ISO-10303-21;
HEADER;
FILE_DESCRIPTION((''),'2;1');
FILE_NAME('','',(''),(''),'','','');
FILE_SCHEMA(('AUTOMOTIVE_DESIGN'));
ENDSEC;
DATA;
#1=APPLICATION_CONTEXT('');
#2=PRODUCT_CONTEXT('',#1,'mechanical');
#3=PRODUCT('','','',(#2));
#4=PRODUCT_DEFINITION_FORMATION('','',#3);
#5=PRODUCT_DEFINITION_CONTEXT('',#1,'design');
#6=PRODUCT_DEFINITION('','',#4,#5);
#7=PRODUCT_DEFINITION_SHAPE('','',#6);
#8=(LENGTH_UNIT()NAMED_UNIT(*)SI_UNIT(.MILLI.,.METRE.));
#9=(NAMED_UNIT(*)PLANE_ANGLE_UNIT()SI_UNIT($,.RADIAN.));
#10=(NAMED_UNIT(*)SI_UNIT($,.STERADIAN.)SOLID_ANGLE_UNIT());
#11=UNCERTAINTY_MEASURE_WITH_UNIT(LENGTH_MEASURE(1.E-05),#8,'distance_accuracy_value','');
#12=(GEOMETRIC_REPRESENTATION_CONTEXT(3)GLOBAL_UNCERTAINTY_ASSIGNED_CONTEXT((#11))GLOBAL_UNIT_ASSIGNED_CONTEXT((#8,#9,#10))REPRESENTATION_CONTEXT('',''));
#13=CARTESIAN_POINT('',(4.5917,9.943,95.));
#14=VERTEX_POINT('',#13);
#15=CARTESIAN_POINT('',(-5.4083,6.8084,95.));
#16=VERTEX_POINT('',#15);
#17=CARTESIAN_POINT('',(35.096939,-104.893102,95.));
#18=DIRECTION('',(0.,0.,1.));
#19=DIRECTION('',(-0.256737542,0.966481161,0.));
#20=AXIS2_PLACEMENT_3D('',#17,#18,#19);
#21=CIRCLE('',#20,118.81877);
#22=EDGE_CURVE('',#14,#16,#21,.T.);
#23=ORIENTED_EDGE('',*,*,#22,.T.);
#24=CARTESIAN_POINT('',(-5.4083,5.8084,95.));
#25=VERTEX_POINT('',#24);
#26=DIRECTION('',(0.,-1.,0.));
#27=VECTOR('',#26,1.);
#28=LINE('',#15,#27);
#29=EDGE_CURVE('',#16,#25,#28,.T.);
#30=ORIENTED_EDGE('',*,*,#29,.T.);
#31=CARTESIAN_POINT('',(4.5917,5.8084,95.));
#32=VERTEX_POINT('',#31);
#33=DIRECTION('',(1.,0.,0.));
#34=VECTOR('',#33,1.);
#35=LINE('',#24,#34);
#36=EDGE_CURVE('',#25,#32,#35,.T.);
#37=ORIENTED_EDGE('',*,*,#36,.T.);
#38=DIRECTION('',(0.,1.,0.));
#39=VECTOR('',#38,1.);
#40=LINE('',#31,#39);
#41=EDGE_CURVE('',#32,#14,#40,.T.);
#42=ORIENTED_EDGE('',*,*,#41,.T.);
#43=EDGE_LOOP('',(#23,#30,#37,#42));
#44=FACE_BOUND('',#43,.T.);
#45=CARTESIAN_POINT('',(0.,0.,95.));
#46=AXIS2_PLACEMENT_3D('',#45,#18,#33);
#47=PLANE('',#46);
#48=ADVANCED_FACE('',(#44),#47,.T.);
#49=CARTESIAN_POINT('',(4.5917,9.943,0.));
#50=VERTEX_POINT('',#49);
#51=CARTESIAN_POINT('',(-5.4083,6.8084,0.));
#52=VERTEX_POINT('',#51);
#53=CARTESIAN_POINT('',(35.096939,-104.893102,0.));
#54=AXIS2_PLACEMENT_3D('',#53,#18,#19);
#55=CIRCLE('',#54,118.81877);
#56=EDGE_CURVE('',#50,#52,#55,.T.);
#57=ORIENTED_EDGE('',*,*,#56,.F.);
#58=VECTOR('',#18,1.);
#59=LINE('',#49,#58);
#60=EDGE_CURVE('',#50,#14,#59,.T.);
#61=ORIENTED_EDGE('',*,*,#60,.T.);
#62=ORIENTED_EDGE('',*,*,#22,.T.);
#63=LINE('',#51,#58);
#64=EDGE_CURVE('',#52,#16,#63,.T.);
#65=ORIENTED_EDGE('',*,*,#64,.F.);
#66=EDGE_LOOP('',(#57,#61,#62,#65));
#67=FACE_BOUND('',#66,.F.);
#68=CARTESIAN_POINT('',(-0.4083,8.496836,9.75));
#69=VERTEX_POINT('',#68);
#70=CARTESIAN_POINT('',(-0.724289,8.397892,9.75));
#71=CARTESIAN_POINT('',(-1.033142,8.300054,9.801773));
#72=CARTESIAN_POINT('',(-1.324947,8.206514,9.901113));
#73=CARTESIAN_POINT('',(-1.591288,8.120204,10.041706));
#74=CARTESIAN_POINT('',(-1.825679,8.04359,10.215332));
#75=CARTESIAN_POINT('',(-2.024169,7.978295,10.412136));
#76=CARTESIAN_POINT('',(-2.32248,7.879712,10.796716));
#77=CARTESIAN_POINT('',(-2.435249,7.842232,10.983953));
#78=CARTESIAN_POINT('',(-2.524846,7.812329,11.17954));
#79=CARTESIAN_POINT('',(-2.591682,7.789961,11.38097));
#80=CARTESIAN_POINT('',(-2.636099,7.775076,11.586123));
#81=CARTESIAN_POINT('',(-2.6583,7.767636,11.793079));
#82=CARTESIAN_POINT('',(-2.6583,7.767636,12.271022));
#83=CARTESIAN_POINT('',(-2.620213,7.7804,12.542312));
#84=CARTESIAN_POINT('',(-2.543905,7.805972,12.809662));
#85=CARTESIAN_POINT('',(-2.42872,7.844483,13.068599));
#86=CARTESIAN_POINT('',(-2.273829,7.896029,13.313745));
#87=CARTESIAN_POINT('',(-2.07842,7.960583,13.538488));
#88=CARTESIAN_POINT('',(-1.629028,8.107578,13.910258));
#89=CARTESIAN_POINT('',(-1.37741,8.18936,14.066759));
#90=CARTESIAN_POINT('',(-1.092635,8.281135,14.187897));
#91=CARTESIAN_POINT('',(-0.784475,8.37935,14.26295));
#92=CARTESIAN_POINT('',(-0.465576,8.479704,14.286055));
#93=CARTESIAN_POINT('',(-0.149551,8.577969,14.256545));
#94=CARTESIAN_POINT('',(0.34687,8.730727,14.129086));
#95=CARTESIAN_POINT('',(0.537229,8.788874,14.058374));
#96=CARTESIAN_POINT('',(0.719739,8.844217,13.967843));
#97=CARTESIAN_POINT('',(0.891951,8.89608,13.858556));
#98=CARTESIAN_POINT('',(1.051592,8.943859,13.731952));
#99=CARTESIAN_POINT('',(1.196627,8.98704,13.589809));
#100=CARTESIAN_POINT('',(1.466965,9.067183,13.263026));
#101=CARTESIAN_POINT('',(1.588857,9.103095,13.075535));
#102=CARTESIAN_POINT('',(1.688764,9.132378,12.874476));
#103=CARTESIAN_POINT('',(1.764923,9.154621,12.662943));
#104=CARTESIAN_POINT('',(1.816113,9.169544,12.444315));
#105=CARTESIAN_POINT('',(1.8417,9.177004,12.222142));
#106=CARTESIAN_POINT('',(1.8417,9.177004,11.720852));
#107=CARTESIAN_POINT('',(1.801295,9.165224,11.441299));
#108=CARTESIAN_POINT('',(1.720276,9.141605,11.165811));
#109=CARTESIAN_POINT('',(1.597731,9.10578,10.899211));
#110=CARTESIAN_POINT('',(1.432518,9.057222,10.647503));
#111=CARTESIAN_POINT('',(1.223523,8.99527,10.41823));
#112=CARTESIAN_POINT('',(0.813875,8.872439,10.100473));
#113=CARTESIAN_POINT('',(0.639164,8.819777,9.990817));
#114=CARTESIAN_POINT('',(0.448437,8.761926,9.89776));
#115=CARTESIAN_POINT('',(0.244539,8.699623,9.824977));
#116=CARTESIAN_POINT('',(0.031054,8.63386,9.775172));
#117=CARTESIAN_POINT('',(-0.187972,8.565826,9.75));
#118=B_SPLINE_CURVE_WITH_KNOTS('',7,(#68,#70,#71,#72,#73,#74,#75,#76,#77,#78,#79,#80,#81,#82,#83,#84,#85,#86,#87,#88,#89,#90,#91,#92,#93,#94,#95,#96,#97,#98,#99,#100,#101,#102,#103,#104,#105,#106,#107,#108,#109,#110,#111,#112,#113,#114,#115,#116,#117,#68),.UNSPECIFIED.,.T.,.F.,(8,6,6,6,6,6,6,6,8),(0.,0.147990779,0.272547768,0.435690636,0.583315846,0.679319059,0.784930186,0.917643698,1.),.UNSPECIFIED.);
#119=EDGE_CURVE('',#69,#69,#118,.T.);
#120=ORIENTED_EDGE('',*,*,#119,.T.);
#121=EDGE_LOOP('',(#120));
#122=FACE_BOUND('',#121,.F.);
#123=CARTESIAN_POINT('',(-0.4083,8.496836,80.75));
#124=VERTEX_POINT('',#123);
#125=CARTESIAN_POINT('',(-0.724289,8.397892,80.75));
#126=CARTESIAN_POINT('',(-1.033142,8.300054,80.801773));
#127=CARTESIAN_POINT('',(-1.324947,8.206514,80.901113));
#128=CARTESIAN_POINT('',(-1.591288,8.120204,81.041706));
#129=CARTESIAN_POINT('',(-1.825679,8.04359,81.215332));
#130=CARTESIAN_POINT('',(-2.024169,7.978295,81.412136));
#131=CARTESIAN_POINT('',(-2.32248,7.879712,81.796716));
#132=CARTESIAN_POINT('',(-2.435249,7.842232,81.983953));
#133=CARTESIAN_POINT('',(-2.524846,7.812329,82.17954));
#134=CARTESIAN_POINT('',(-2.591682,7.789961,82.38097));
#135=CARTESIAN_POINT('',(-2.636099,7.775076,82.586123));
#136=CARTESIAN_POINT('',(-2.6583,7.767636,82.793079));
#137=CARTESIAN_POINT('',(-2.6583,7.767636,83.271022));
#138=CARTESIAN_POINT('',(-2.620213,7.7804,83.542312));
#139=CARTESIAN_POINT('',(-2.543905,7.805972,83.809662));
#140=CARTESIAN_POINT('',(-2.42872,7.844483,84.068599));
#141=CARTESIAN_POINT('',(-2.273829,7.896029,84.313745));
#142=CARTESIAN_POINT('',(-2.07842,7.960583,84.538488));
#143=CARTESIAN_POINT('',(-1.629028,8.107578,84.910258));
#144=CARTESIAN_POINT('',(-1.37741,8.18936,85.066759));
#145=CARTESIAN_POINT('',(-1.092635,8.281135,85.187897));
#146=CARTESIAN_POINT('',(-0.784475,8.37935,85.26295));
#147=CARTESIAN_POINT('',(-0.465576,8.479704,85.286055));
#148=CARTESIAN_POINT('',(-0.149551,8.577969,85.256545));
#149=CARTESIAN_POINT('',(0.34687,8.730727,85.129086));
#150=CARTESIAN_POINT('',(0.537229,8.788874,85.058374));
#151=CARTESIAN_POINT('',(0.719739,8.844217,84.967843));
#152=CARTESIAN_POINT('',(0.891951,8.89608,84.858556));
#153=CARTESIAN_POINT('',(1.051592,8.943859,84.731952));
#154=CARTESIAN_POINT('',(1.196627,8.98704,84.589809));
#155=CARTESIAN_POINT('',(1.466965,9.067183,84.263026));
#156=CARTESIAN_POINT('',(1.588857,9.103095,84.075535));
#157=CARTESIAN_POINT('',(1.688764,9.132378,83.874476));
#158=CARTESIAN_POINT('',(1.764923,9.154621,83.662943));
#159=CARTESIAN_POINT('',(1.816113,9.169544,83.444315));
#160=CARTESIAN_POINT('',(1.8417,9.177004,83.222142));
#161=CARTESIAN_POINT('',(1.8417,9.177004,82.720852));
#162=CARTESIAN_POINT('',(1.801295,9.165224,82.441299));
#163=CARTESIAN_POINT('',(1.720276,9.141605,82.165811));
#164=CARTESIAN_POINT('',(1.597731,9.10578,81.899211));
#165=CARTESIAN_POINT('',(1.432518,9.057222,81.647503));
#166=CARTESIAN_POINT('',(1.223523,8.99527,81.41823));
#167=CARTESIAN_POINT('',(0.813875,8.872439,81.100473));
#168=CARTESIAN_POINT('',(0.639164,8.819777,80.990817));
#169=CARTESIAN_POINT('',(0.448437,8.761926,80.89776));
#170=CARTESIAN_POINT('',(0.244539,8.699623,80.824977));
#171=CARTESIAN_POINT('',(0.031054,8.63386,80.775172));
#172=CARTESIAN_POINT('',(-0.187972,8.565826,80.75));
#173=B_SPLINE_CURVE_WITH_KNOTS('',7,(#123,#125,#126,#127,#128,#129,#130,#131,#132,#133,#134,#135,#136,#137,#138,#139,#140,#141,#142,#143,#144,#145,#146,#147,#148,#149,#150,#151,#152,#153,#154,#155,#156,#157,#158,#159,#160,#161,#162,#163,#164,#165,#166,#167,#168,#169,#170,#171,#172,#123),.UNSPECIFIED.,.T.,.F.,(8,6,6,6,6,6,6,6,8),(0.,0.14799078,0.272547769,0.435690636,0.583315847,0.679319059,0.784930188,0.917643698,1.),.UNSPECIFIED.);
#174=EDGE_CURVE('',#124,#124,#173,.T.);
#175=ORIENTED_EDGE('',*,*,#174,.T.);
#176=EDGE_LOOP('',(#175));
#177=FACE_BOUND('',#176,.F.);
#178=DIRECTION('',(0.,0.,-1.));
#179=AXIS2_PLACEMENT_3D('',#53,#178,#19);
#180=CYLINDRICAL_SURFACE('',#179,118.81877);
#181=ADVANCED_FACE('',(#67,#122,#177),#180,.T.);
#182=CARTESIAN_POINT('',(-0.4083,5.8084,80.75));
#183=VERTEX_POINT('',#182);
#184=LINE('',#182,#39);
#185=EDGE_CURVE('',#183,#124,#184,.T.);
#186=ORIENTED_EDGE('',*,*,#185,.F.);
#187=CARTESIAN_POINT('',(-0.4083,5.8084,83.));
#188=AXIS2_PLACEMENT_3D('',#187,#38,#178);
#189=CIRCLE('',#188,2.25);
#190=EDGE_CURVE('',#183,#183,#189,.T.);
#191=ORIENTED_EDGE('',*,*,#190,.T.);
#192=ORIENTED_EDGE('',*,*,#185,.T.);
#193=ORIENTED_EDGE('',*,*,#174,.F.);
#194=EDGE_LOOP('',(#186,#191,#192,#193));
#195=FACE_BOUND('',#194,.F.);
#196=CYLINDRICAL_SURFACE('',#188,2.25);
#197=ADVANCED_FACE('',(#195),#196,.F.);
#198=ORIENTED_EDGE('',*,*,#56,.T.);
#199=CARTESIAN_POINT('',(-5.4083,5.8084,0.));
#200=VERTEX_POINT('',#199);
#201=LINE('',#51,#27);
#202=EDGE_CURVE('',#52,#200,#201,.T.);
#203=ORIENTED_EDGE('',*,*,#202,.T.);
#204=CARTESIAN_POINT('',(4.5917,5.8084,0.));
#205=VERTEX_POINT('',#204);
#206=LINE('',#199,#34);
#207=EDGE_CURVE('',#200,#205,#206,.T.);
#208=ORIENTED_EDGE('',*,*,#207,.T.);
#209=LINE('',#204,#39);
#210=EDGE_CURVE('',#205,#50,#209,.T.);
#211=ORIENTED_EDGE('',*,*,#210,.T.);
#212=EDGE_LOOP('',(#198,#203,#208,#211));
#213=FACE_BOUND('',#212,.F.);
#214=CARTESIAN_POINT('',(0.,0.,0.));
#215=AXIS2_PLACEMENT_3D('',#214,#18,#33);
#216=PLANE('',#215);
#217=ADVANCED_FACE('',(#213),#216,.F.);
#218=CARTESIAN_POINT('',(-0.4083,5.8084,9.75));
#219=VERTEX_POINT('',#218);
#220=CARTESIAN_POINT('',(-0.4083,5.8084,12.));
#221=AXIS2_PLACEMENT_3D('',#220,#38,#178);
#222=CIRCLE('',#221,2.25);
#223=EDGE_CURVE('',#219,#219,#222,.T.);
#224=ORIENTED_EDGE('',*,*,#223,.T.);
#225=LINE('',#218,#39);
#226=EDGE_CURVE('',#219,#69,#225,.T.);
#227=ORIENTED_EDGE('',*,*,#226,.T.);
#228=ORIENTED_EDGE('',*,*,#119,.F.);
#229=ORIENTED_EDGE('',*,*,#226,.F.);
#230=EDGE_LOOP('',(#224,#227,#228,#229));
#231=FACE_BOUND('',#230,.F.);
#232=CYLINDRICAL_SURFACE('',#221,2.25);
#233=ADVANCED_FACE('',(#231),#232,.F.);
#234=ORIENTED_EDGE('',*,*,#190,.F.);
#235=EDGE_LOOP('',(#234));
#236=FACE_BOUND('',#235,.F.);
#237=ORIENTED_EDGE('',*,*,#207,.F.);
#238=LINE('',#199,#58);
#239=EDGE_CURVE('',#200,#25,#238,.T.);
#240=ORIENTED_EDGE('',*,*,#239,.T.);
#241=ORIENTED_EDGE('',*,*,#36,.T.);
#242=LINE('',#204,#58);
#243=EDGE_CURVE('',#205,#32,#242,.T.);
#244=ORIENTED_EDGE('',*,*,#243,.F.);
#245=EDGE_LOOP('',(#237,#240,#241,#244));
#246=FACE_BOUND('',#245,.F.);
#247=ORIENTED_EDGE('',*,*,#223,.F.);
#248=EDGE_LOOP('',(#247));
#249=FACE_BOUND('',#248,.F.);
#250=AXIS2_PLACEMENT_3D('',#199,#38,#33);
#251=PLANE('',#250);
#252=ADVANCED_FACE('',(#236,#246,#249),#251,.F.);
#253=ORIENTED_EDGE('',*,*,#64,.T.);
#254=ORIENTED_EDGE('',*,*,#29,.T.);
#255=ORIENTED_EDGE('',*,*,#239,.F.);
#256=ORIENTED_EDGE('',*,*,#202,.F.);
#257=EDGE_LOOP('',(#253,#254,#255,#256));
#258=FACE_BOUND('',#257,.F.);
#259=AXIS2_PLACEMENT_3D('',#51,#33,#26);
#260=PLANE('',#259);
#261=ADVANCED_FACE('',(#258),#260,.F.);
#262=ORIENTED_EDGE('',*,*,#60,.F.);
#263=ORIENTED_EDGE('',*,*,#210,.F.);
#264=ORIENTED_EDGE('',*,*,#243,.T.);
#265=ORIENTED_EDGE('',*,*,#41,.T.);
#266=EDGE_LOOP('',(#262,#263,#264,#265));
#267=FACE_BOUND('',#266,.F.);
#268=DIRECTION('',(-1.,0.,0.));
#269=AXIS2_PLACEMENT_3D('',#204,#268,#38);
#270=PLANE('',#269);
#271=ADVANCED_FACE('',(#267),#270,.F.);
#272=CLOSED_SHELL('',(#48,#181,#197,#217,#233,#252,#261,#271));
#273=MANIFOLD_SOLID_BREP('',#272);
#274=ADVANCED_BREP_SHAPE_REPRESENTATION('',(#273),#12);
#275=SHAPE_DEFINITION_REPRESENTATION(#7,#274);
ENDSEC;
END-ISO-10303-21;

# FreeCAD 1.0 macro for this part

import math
import FreeCAD as App
import Part
import Sketcher
Q = App.Units.Quantity

doc = App.newDocument("Part")
body = doc.addObject("PartDesign::Body", "Body")

# Sketch on XY plane
sketch1 = doc.addObject("Sketcher::SketchObject", "Sketch")
body.addObject(sketch1)
sketch1.AttachmentSupport = (doc.XY_Plane, [""])
sketch1.MapMode = "FlatFace"
sketch1.addGeometry(Part.ArcOfCircle(Part.Circle(App.Vector(35.1, -104.9, 0), App.Vector(0, 0, 1), 118.8), math.radians(104.88), math.radians(109.93)), False)
sketch1.addGeometry(Part.LineSegment(App.Vector(-5.4, 6.8, 0), App.Vector(-5.4, 5.8, 0)), False)
sketch1.addGeometry(Part.LineSegment(App.Vector(-5.4, 5.8, 0), App.Vector(4.6, 5.8, 0)), False)
sketch1.addGeometry(Part.LineSegment(App.Vector(4.6, 5.8, 0), App.Vector(4.6, 9.9, 0)), False)
sketch1.addConstraint(Sketcher.Constraint("Coincident", 0, 2, 1, 1))
sketch1.addConstraint(Sketcher.Constraint("Coincident", 1, 2, 2, 1))
sketch1.addConstraint(Sketcher.Constraint("Coincident", 2, 2, 3, 1))
sketch1.addConstraint(Sketcher.Constraint("Coincident", 3, 2, 0, 1))
sketch1.addConstraint(Sketcher.Constraint("Vertical", 1))
sketch1.addConstraint(Sketcher.Constraint("Horizontal", 2))
sketch1.addConstraint(Sketcher.Constraint("Vertical", 3))
sketch1.addConstraint(Sketcher.Constraint("DistanceY", 1, 2, 1, 1, Q("1 mm")))
sketch1.addConstraint(Sketcher.Constraint("DistanceX", 2, 1, 2, 2, Q("10 mm")))
sketch1.addConstraint(Sketcher.Constraint("Radius", 0, Q("118.8188 mm")))
sketch1.addConstraint(Sketcher.Constraint("DistanceY", 3, 1, 3, 2, Q("4.1346 mm")))
sketch1.addConstraint(Sketcher.Constraint("DistanceX", -1, 1, 0, 3, Q("35.097 mm")))
sketch1.addConstraint(Sketcher.Constraint("DistanceY", 0, 3, -1, 1, Q("104.893 mm")))
pad1 = doc.addObject("PartDesign::Pad", "Pad")
body.addObject(pad1)
pad1.Profile = sketch1
pad1.Length = 95

# Sketch on XZ plane
sketch2 = doc.addObject("Sketcher::SketchObject", "Sketch001")
body.addObject(sketch2)
sketch2.AttachmentSupport = (doc.XZ_Plane, [""])
sketch2.MapMode = "FlatFace"
sketch2.AttachmentOffset = App.Placement(App.Vector(0, 0, -5.8084), App.Rotation())
sketch2.addGeometry(Part.Circle(App.Vector(-0.4, 12, 0), App.Vector(0, 0, 1), 2.2), False)
sketch2.addGeometry(Part.Circle(App.Vector(-0.4, 83, 0), App.Vector(0, 0, 1), 2.2), False)
sketch2.addConstraint(Sketcher.Constraint("Equal", 0, 1))
sketch2.addConstraint(Sketcher.Constraint("Vertical", 0, 3, 1, 3))
sketch2.addConstraint(Sketcher.Constraint("Diameter", 0, Q("4.5 mm")))
sketch2.addConstraint(Sketcher.Constraint("DistanceY", -1, 1, 0, 3, Q("12 mm")))
sketch2.addConstraint(Sketcher.Constraint("DistanceY", -1, 1, 1, 3, Q("83 mm")))
sketch2.addConstraint(Sketcher.Constraint("DistanceX", 0, 3, -1, 1, Q("0.4083 mm")))
doc.recompute()
hole = doc.addObject("PartDesign::Hole", "Hole")
body.addObject(hole)
hole.Profile = sketch2
hole.ThreadType = "None"
hole.Diameter = 4.5
hole.DepthType = "Dimension"
hole.Depth = 8
hole.DrillPoint = "Angled"
hole.DrillPointAngle = 118

doc.recompute()
